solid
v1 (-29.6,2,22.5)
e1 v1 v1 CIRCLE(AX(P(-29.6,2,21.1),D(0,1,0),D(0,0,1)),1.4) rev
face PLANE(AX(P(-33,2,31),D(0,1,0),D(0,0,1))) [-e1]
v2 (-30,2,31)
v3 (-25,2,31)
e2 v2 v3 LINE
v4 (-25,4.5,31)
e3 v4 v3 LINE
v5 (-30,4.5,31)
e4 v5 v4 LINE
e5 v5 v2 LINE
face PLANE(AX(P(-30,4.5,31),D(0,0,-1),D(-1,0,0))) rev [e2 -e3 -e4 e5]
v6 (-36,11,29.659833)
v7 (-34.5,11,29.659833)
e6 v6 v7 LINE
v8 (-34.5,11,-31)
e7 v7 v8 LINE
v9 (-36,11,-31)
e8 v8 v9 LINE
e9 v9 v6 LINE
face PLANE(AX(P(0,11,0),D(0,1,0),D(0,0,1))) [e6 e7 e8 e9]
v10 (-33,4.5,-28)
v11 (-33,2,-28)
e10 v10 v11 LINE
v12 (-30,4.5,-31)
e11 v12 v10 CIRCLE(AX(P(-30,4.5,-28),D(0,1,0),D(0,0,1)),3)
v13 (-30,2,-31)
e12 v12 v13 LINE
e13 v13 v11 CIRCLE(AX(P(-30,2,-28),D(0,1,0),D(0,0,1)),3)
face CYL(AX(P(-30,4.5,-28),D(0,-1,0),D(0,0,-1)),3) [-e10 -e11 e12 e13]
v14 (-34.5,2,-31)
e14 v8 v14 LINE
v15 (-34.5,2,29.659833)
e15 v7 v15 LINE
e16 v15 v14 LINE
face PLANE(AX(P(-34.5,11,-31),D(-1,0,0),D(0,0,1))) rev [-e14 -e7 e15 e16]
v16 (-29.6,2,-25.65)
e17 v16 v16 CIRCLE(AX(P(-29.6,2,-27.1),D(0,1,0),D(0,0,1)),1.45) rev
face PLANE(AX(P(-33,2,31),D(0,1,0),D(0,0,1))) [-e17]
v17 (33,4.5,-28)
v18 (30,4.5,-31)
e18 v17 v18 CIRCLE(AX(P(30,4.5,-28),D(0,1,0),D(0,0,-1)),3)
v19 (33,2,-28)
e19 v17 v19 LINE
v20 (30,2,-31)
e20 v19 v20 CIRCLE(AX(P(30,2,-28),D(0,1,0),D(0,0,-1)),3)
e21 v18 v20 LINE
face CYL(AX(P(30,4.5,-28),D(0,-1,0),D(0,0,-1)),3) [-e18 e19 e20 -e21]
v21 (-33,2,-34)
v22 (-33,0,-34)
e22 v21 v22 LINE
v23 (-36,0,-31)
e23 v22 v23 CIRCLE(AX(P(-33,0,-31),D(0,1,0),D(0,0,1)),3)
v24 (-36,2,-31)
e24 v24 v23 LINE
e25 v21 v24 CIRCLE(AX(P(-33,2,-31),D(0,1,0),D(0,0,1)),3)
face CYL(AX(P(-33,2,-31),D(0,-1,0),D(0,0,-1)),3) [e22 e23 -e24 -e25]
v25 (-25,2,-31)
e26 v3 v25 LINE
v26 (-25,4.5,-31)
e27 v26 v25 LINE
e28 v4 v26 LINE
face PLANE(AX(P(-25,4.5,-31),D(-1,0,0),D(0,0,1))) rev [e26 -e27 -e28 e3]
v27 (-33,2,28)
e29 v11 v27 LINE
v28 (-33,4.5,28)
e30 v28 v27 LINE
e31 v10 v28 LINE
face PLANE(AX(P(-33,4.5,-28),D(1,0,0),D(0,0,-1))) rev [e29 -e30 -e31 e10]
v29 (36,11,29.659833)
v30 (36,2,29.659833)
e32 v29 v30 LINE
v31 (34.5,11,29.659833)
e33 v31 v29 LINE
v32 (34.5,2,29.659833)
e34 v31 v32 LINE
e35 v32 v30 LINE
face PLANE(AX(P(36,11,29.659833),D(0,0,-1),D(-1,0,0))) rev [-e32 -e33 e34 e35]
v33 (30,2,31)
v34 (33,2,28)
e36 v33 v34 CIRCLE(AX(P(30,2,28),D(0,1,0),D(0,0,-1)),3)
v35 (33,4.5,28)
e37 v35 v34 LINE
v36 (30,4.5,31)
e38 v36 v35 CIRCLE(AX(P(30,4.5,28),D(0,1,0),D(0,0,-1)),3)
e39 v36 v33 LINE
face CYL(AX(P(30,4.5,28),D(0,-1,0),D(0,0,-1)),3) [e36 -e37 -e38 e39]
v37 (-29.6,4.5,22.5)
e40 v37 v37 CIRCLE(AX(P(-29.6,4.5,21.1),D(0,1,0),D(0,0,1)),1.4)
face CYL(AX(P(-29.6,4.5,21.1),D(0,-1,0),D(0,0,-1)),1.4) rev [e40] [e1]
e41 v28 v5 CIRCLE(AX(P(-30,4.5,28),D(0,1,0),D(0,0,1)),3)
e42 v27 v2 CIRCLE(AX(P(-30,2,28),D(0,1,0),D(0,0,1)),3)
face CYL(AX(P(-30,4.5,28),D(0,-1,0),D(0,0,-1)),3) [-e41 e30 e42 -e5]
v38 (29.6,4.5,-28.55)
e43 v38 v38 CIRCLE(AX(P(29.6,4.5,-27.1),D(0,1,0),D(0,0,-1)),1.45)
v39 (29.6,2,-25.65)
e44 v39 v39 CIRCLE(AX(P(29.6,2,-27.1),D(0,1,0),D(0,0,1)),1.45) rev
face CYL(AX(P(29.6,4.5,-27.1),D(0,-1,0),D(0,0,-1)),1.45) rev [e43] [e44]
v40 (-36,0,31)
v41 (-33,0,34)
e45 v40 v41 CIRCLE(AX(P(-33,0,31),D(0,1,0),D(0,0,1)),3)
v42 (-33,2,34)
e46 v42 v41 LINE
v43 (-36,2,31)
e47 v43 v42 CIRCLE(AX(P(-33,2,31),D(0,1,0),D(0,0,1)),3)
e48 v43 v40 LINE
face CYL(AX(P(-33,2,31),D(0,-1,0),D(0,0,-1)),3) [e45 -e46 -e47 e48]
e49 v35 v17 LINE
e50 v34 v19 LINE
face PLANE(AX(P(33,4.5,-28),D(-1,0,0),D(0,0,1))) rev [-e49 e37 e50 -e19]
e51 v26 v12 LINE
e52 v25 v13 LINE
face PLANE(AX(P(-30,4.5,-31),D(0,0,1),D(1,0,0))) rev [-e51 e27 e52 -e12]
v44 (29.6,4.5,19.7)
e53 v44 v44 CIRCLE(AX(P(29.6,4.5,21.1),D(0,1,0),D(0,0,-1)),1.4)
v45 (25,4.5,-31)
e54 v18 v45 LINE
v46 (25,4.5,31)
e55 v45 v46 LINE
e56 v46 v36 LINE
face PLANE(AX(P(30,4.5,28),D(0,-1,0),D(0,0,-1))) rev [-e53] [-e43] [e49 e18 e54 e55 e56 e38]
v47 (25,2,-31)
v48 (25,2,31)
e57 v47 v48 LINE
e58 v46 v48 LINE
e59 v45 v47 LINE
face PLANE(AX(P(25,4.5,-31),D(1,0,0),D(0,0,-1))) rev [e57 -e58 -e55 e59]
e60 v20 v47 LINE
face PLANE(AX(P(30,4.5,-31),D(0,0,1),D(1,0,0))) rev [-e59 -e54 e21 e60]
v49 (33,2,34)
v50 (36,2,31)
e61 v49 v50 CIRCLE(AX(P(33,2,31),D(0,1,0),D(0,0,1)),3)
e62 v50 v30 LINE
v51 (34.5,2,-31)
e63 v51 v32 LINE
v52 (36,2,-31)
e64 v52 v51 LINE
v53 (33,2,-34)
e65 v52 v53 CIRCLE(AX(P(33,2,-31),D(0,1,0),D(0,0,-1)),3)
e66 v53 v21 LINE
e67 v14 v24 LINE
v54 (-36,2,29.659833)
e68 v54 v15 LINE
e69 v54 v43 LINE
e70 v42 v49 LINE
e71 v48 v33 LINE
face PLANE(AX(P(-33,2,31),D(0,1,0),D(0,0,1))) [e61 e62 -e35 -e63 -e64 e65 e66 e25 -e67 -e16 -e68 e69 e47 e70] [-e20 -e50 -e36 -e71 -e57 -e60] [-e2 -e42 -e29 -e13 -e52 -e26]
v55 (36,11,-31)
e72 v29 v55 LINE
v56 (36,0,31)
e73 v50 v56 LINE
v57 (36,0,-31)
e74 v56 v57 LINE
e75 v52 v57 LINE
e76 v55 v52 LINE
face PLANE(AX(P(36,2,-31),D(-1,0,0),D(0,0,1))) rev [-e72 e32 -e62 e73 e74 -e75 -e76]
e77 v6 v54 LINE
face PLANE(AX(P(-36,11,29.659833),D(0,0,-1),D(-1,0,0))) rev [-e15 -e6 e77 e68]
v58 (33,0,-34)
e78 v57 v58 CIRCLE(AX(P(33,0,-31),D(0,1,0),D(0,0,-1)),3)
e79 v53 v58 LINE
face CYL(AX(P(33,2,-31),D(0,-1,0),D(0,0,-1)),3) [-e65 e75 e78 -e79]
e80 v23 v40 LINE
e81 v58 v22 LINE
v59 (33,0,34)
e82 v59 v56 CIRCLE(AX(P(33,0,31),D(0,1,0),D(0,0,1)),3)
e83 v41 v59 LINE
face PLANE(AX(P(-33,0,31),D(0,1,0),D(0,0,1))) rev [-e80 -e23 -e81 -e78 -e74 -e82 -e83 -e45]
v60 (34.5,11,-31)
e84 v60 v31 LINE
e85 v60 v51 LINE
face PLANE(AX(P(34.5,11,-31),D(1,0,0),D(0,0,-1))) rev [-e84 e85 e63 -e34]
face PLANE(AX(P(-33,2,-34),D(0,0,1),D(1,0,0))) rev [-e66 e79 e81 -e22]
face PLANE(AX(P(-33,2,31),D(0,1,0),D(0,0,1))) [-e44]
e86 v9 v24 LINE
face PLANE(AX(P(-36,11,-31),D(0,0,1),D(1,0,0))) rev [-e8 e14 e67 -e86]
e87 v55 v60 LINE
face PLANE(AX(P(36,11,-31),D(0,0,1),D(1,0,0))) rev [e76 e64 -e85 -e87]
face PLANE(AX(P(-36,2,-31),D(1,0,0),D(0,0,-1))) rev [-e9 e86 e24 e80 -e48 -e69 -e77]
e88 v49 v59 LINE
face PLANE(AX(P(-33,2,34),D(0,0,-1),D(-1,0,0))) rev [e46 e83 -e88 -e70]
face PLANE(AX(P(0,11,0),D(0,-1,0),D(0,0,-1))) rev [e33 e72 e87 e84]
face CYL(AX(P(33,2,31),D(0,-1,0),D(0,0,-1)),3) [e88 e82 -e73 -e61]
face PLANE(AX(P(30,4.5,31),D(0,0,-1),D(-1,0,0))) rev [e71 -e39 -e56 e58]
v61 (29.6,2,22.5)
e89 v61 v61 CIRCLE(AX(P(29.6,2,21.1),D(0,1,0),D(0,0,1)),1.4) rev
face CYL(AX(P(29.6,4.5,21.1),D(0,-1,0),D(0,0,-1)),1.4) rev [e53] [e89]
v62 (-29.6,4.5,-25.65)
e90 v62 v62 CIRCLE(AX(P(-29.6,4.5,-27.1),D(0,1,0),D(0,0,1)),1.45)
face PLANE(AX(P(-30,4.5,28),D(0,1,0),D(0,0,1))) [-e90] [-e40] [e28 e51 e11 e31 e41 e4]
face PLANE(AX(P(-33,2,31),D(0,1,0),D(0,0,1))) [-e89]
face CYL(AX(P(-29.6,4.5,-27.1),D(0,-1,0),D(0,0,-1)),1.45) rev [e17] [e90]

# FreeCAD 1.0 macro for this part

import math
import FreeCAD as App
import Part
import Sketcher
from FreeCAD import Vector
Q = App.Units.Quantity

doc = App.newDocument("Part")
body = doc.addObject("PartDesign::Body", "Body")

sketch1 = body.newObject("Sketcher::SketchObject", "Sketch")
sketch1.AttachmentSupport = (doc.getObject("XZ_Plane"), [""])
sketch1.MapMode = "FlatFace"
sketch1.addGeometry(Part.LineSegment(Vector(33, -34, 0), Vector(-33, -34, 0)), False)
sketch1.addGeometry(Part.ArcOfCircle(Part.Circle(Vector(-33, -31, 0), Vector(0, 0, 1), 3), math.radians(180), math.radians(270)), False)
sketch1.addGeometry(Part.LineSegment(Vector(-36, -31, 0), Vector(-36, 31, 0)), False)
sketch1.addGeometry(Part.ArcOfCircle(Part.Circle(Vector(-33, 31, 0), Vector(0, 0, 1), 3), math.radians(90), math.radians(180)), False)
sketch1.addGeometry(Part.LineSegment(Vector(-33, 34, 0), Vector(33, 34, 0)), False)
sketch1.addGeometry(Part.ArcOfCircle(Part.Circle(Vector(33, 31, 0), Vector(0, 0, 1), 3), math.radians(0), math.radians(90)), False)
sketch1.addGeometry(Part.LineSegment(Vector(36, 31, 0), Vector(36, -31, 0)), False)
sketch1.addGeometry(Part.ArcOfCircle(Part.Circle(Vector(33, -31, 0), Vector(0, 0, 1), 3), math.radians(-90), math.radians(0)), False)
sketch1.addConstraint(Sketcher.Constraint("Tangent", 0, 2, 1, 2))
sketch1.addConstraint(Sketcher.Constraint("Tangent", 1, 1, 2, 1))
sketch1.addConstraint(Sketcher.Constraint("Tangent", 2, 2, 3, 2))
sketch1.addConstraint(Sketcher.Constraint("Tangent", 3, 1, 4, 1))
sketch1.addConstraint(Sketcher.Constraint("Tangent", 4, 2, 5, 2))
sketch1.addConstraint(Sketcher.Constraint("Tangent", 5, 1, 6, 1))
sketch1.addConstraint(Sketcher.Constraint("Tangent", 6, 2, 7, 2))
sketch1.addConstraint(Sketcher.Constraint("Tangent", 7, 1, 0, 1))
sketch1.addConstraint(Sketcher.Constraint("Horizontal", 0))
sketch1.addConstraint(Sketcher.Constraint("Vertical", 2))
sketch1.addConstraint(Sketcher.Constraint("Horizontal", 4))
sketch1.addConstraint(Sketcher.Constraint("Vertical", 6))
sketch1.addConstraint(Sketcher.Constraint("Equal", 1, 3))
sketch1.addConstraint(Sketcher.Constraint("Equal", 3, 5))
sketch1.addConstraint(Sketcher.Constraint("Equal", 5, 7))
sketch1.addConstraint(Sketcher.Constraint("Symmetric", 1, 3, 5, 3, -1, 1))
sketch1.addConstraint(Sketcher.Constraint("Radius", 1, Q("3 mm")))
sketch1.addConstraint(Sketcher.Constraint("DistanceX", 0, 2, 0, 1, Q("66 mm")))
sketch1.addConstraint(Sketcher.Constraint("DistanceY", 2, 1, 2, 2, Q("62 mm")))
pad1 = body.newObject("PartDesign::Pad", "Pad")
pad1.Profile = sketch1
pad1.Length = 2
pad1.Reversed = True

sketch2 = body.newObject("Sketcher::SketchObject", "Sketch001")
sketch2.AttachmentSupport = (doc.getObject("XZ_Plane"), [""])
sketch2.MapMode = "FlatFace"
sketch2.AttachmentOffset = App.Placement(Vector(0, 0, -2), App.Rotation())
sketch2.addGeometry(Part.LineSegment(Vector(-36, -31, 0), Vector(-36, 29.659833, 0)), False)
sketch2.addGeometry(Part.LineSegment(Vector(-36, 29.659833, 0), Vector(-34.5, 29.659833, 0)), False)
sketch2.addGeometry(Part.LineSegment(Vector(-34.5, 29.659833, 0), Vector(-34.5, -31, 0)), False)
sketch2.addGeometry(Part.LineSegment(Vector(-34.5, -31, 0), Vector(-36, -31, 0)), False)
sketch2.addGeometry(Part.LineSegment(Vector(34.5, -31, 0), Vector(34.5, 29.659833, 0)), False)
sketch2.addGeometry(Part.LineSegment(Vector(34.5, 29.659833, 0), Vector(36, 29.659833, 0)), False)
sketch2.addGeometry(Part.LineSegment(Vector(36, 29.659833, 0), Vector(36, -31, 0)), False)
sketch2.addGeometry(Part.LineSegment(Vector(36, -31, 0), Vector(34.5, -31, 0)), False)
sketch2.addConstraint(Sketcher.Constraint("Coincident", 0, 2, 1, 1))
sketch2.addConstraint(Sketcher.Constraint("Coincident", 1, 2, 2, 1))
sketch2.addConstraint(Sketcher.Constraint("Coincident", 2, 2, 3, 1))
sketch2.addConstraint(Sketcher.Constraint("Coincident", 3, 2, 0, 1))
sketch2.addConstraint(Sketcher.Constraint("Coincident", 4, 2, 5, 1))
sketch2.addConstraint(Sketcher.Constraint("Coincident", 5, 2, 6, 1))
sketch2.addConstraint(Sketcher.Constraint("Coincident", 6, 2, 7, 1))
sketch2.addConstraint(Sketcher.Constraint("Coincident", 7, 2, 4, 1))
sketch2.addConstraint(Sketcher.Constraint("Vertical", 0))
sketch2.addConstraint(Sketcher.Constraint("Horizontal", 1))
sketch2.addConstraint(Sketcher.Constraint("Vertical", 2))
sketch2.addConstraint(Sketcher.Constraint("Horizontal", 3))
sketch2.addConstraint(Sketcher.Constraint("Vertical", 4))
sketch2.addConstraint(Sketcher.Constraint("Horizontal", 5))
sketch2.addConstraint(Sketcher.Constraint("Vertical", 6))
sketch2.addConstraint(Sketcher.Constraint("Horizontal", 7))
sketch2.addConstraint(Sketcher.Constraint("Symmetric", 1, 2, 4, 2, -2))
sketch2.addConstraint(Sketcher.Constraint("Symmetric", 3, 2, 6, 2, -2))
sketch2.addConstraint(Sketcher.Constraint("DistanceX", 1, 1, 1, 2, Q("1.5 mm")))
sketch2.addConstraint(Sketcher.Constraint("DistanceX", 0, 2, -1, 1, Q("36 mm")))
sketch2.addConstraint(Sketcher.Constraint("DistanceY", 2, 2, -1, 1, Q("31 mm")))
sketch2.addConstraint(Sketcher.Constraint("DistanceY", 0, 1, 0, 2, Q("60.659833 mm")))
pad2 = body.newObject("PartDesign::Pad", "Pad001")
pad2.Profile = sketch2
pad2.Length = 9
pad2.Reversed = True

sketch3 = body.newObject("Sketcher::SketchObject", "Sketch002")
sketch3.AttachmentSupport = (doc.getObject("XZ_Plane"), [""])
sketch3.MapMode = "FlatFace"
sketch3.AttachmentOffset = App.Placement(Vector(0, 0, -2), App.Rotation())
sketch3.addGeometry(Part.LineSegment(Vector(-25, -31, 0), Vector(-30, -31, 0)), False)
sketch3.addGeometry(Part.ArcOfCircle(Part.Circle(Vector(-30, -28, 0), Vector(0, 0, 1), 3), math.radians(180), math.radians(270)), False)
sketch3.addGeometry(Part.LineSegment(Vector(-33, -28, 0), Vector(-33, 28, 0)), False)
sketch3.addGeometry(Part.ArcOfCircle(Part.Circle(Vector(-30, 28, 0), Vector(0, 0, 1), 3), math.radians(90), math.radians(180)), False)
sketch3.addGeometry(Part.LineSegment(Vector(-30, 31, 0), Vector(-25, 31, 0)), False)
sketch3.addGeometry(Part.LineSegment(Vector(-25, 31, 0), Vector(-25, -31, 0)), False)
sketch3.addGeometry(Part.Circle(Vector(-29.6, 21.1, 0), Vector(0, 0, 1), 1.4), False)
sketch3.addGeometry(Part.Circle(Vector(-29.6, -27.1, 0), Vector(0, 0, 1), 1.45), False)
sketch3.addGeometry(Part.LineSegment(Vector(25, 31, 0), Vector(30, 31, 0)), False)
sketch3.addGeometry(Part.ArcOfCircle(Part.Circle(Vector(30, 28, 0), Vector(0, 0, 1), 3), math.radians(0), math.radians(90)), False)
sketch3.addGeometry(Part.LineSegment(Vector(33, 28, 0), Vector(33, -28, 0)), False)
sketch3.addGeometry(Part.ArcOfCircle(Part.Circle(Vector(30, -28, 0), Vector(0, 0, 1), 3), math.radians(-90), math.radians(0)), False)
sketch3.addGeometry(Part.LineSegment(Vector(30, -31, 0), Vector(25, -31, 0)), False)
sketch3.addGeometry(Part.LineSegment(Vector(25, -31, 0), Vector(25, 31, 0)), False)
sketch3.addGeometry(Part.Circle(Vector(29.6, 21.1, 0), Vector(0, 0, 1), 1.4), False)
sketch3.addGeometry(Part.Circle(Vector(29.6, -27.1, 0), Vector(0, 0, 1), 1.45), False)
sketch3.addConstraint(Sketcher.Constraint("Tangent", 0, 2, 1, 2))
sketch3.addConstraint(Sketcher.Constraint("Tangent", 1, 1, 2, 1))
sketch3.addConstraint(Sketcher.Constraint("Tangent", 2, 2, 3, 2))
sketch3.addConstraint(Sketcher.Constraint("Tangent", 3, 1, 4, 1))
sketch3.addConstraint(Sketcher.Constraint("Coincident", 4, 2, 5, 1))
sketch3.addConstraint(Sketcher.Constraint("Coincident", 5, 2, 0, 1))
sketch3.addConstraint(Sketcher.Constraint("Tangent", 8, 2, 9, 2))
sketch3.addConstraint(Sketcher.Constraint("Tangent", 9, 1, 10, 1))
sketch3.addConstraint(Sketcher.Constraint("Tangent", 10, 2, 11, 2))
sketch3.addConstraint(Sketcher.Constraint("Tangent", 11, 1, 12, 1))
sketch3.addConstraint(Sketcher.Constraint("Coincident", 12, 2, 13, 1))
sketch3.addConstraint(Sketcher.Constraint("Coincident", 13, 2, 8, 1))
sketch3.addConstraint(Sketcher.Constraint("Horizontal", 0))
sketch3.addConstraint(Sketcher.Constraint("Vertical", 2))
sketch3.addConstraint(Sketcher.Constraint("Horizontal", 4))
sketch3.addConstraint(Sketcher.Constraint("Vertical", 5))
sketch3.addConstraint(Sketcher.Constraint("Horizontal", 8))
sketch3.addConstraint(Sketcher.Constraint("Vertical", 10))
sketch3.addConstraint(Sketcher.Constraint("Horizontal", 12))
sketch3.addConstraint(Sketcher.Constraint("Vertical", 13))
sketch3.addConstraint(Sketcher.Constraint("Equal", 1, 3))
sketch3.addConstraint(Sketcher.Constraint("Equal", 3, 9))
sketch3.addConstraint(Sketcher.Constraint("Equal", 9, 11))
sketch3.addConstraint(Sketcher.Constraint("Equal", 6, 14))
sketch3.addConstraint(Sketcher.Constraint("Equal", 7, 15))
sketch3.addConstraint(Sketcher.Constraint("Symmetric", 1, 3, 9, 3, -1, 1))
sketch3.addConstraint(Sketcher.Constraint("Symmetric", 4, 2, 12, 2, -1, 1))
sketch3.addConstraint(Sketcher.Constraint("Symmetric", 6, 3, 14, 3, -2))
sketch3.addConstraint(Sketcher.Constraint("Symmetric", 7, 3, 15, 3, -2))
sketch3.addConstraint(Sketcher.Constraint("Horizontal", 3, 3, 9, 3))
sketch3.addConstraint(Sketcher.Constraint("Vertical", 6, 3, 7, 3))
sketch3.addConstraint(Sketcher.Constraint("Radius", 1, Q("3 mm")))
sketch3.addConstraint(Sketcher.Constraint("Diameter", 6, Q("2.8 mm")))
sketch3.addConstraint(Sketcher.Constraint("Diameter", 7, Q("2.9 mm")))
sketch3.addConstraint(Sketcher.Constraint("DistanceX", 0, 2, 0, 1, Q("5 mm")))
sketch3.addConstraint(Sketcher.Constraint("DistanceY", 2, 1, 2, 2, Q("56 mm")))
sketch3.addConstraint(Sketcher.Constraint("DistanceX", 1, 3, -1, 1, Q("30 mm")))
sketch3.addConstraint(Sketcher.Constraint("DistanceX", 6, 3, -1, 1, Q("29.6 mm")))
sketch3.addConstraint(Sketcher.Constraint("DistanceY", -1, 1, 6, 3, Q("21.1 mm")))
sketch3.addConstraint(Sketcher.Constraint("DistanceY", 7, 3, -1, 1, Q("27.1 mm")))
pad3 = body.newObject("PartDesign::Pad", "Pad002")
pad3.Profile = sketch3
pad3.Length = 2.5
pad3.Reversed = True

doc.recompute()
